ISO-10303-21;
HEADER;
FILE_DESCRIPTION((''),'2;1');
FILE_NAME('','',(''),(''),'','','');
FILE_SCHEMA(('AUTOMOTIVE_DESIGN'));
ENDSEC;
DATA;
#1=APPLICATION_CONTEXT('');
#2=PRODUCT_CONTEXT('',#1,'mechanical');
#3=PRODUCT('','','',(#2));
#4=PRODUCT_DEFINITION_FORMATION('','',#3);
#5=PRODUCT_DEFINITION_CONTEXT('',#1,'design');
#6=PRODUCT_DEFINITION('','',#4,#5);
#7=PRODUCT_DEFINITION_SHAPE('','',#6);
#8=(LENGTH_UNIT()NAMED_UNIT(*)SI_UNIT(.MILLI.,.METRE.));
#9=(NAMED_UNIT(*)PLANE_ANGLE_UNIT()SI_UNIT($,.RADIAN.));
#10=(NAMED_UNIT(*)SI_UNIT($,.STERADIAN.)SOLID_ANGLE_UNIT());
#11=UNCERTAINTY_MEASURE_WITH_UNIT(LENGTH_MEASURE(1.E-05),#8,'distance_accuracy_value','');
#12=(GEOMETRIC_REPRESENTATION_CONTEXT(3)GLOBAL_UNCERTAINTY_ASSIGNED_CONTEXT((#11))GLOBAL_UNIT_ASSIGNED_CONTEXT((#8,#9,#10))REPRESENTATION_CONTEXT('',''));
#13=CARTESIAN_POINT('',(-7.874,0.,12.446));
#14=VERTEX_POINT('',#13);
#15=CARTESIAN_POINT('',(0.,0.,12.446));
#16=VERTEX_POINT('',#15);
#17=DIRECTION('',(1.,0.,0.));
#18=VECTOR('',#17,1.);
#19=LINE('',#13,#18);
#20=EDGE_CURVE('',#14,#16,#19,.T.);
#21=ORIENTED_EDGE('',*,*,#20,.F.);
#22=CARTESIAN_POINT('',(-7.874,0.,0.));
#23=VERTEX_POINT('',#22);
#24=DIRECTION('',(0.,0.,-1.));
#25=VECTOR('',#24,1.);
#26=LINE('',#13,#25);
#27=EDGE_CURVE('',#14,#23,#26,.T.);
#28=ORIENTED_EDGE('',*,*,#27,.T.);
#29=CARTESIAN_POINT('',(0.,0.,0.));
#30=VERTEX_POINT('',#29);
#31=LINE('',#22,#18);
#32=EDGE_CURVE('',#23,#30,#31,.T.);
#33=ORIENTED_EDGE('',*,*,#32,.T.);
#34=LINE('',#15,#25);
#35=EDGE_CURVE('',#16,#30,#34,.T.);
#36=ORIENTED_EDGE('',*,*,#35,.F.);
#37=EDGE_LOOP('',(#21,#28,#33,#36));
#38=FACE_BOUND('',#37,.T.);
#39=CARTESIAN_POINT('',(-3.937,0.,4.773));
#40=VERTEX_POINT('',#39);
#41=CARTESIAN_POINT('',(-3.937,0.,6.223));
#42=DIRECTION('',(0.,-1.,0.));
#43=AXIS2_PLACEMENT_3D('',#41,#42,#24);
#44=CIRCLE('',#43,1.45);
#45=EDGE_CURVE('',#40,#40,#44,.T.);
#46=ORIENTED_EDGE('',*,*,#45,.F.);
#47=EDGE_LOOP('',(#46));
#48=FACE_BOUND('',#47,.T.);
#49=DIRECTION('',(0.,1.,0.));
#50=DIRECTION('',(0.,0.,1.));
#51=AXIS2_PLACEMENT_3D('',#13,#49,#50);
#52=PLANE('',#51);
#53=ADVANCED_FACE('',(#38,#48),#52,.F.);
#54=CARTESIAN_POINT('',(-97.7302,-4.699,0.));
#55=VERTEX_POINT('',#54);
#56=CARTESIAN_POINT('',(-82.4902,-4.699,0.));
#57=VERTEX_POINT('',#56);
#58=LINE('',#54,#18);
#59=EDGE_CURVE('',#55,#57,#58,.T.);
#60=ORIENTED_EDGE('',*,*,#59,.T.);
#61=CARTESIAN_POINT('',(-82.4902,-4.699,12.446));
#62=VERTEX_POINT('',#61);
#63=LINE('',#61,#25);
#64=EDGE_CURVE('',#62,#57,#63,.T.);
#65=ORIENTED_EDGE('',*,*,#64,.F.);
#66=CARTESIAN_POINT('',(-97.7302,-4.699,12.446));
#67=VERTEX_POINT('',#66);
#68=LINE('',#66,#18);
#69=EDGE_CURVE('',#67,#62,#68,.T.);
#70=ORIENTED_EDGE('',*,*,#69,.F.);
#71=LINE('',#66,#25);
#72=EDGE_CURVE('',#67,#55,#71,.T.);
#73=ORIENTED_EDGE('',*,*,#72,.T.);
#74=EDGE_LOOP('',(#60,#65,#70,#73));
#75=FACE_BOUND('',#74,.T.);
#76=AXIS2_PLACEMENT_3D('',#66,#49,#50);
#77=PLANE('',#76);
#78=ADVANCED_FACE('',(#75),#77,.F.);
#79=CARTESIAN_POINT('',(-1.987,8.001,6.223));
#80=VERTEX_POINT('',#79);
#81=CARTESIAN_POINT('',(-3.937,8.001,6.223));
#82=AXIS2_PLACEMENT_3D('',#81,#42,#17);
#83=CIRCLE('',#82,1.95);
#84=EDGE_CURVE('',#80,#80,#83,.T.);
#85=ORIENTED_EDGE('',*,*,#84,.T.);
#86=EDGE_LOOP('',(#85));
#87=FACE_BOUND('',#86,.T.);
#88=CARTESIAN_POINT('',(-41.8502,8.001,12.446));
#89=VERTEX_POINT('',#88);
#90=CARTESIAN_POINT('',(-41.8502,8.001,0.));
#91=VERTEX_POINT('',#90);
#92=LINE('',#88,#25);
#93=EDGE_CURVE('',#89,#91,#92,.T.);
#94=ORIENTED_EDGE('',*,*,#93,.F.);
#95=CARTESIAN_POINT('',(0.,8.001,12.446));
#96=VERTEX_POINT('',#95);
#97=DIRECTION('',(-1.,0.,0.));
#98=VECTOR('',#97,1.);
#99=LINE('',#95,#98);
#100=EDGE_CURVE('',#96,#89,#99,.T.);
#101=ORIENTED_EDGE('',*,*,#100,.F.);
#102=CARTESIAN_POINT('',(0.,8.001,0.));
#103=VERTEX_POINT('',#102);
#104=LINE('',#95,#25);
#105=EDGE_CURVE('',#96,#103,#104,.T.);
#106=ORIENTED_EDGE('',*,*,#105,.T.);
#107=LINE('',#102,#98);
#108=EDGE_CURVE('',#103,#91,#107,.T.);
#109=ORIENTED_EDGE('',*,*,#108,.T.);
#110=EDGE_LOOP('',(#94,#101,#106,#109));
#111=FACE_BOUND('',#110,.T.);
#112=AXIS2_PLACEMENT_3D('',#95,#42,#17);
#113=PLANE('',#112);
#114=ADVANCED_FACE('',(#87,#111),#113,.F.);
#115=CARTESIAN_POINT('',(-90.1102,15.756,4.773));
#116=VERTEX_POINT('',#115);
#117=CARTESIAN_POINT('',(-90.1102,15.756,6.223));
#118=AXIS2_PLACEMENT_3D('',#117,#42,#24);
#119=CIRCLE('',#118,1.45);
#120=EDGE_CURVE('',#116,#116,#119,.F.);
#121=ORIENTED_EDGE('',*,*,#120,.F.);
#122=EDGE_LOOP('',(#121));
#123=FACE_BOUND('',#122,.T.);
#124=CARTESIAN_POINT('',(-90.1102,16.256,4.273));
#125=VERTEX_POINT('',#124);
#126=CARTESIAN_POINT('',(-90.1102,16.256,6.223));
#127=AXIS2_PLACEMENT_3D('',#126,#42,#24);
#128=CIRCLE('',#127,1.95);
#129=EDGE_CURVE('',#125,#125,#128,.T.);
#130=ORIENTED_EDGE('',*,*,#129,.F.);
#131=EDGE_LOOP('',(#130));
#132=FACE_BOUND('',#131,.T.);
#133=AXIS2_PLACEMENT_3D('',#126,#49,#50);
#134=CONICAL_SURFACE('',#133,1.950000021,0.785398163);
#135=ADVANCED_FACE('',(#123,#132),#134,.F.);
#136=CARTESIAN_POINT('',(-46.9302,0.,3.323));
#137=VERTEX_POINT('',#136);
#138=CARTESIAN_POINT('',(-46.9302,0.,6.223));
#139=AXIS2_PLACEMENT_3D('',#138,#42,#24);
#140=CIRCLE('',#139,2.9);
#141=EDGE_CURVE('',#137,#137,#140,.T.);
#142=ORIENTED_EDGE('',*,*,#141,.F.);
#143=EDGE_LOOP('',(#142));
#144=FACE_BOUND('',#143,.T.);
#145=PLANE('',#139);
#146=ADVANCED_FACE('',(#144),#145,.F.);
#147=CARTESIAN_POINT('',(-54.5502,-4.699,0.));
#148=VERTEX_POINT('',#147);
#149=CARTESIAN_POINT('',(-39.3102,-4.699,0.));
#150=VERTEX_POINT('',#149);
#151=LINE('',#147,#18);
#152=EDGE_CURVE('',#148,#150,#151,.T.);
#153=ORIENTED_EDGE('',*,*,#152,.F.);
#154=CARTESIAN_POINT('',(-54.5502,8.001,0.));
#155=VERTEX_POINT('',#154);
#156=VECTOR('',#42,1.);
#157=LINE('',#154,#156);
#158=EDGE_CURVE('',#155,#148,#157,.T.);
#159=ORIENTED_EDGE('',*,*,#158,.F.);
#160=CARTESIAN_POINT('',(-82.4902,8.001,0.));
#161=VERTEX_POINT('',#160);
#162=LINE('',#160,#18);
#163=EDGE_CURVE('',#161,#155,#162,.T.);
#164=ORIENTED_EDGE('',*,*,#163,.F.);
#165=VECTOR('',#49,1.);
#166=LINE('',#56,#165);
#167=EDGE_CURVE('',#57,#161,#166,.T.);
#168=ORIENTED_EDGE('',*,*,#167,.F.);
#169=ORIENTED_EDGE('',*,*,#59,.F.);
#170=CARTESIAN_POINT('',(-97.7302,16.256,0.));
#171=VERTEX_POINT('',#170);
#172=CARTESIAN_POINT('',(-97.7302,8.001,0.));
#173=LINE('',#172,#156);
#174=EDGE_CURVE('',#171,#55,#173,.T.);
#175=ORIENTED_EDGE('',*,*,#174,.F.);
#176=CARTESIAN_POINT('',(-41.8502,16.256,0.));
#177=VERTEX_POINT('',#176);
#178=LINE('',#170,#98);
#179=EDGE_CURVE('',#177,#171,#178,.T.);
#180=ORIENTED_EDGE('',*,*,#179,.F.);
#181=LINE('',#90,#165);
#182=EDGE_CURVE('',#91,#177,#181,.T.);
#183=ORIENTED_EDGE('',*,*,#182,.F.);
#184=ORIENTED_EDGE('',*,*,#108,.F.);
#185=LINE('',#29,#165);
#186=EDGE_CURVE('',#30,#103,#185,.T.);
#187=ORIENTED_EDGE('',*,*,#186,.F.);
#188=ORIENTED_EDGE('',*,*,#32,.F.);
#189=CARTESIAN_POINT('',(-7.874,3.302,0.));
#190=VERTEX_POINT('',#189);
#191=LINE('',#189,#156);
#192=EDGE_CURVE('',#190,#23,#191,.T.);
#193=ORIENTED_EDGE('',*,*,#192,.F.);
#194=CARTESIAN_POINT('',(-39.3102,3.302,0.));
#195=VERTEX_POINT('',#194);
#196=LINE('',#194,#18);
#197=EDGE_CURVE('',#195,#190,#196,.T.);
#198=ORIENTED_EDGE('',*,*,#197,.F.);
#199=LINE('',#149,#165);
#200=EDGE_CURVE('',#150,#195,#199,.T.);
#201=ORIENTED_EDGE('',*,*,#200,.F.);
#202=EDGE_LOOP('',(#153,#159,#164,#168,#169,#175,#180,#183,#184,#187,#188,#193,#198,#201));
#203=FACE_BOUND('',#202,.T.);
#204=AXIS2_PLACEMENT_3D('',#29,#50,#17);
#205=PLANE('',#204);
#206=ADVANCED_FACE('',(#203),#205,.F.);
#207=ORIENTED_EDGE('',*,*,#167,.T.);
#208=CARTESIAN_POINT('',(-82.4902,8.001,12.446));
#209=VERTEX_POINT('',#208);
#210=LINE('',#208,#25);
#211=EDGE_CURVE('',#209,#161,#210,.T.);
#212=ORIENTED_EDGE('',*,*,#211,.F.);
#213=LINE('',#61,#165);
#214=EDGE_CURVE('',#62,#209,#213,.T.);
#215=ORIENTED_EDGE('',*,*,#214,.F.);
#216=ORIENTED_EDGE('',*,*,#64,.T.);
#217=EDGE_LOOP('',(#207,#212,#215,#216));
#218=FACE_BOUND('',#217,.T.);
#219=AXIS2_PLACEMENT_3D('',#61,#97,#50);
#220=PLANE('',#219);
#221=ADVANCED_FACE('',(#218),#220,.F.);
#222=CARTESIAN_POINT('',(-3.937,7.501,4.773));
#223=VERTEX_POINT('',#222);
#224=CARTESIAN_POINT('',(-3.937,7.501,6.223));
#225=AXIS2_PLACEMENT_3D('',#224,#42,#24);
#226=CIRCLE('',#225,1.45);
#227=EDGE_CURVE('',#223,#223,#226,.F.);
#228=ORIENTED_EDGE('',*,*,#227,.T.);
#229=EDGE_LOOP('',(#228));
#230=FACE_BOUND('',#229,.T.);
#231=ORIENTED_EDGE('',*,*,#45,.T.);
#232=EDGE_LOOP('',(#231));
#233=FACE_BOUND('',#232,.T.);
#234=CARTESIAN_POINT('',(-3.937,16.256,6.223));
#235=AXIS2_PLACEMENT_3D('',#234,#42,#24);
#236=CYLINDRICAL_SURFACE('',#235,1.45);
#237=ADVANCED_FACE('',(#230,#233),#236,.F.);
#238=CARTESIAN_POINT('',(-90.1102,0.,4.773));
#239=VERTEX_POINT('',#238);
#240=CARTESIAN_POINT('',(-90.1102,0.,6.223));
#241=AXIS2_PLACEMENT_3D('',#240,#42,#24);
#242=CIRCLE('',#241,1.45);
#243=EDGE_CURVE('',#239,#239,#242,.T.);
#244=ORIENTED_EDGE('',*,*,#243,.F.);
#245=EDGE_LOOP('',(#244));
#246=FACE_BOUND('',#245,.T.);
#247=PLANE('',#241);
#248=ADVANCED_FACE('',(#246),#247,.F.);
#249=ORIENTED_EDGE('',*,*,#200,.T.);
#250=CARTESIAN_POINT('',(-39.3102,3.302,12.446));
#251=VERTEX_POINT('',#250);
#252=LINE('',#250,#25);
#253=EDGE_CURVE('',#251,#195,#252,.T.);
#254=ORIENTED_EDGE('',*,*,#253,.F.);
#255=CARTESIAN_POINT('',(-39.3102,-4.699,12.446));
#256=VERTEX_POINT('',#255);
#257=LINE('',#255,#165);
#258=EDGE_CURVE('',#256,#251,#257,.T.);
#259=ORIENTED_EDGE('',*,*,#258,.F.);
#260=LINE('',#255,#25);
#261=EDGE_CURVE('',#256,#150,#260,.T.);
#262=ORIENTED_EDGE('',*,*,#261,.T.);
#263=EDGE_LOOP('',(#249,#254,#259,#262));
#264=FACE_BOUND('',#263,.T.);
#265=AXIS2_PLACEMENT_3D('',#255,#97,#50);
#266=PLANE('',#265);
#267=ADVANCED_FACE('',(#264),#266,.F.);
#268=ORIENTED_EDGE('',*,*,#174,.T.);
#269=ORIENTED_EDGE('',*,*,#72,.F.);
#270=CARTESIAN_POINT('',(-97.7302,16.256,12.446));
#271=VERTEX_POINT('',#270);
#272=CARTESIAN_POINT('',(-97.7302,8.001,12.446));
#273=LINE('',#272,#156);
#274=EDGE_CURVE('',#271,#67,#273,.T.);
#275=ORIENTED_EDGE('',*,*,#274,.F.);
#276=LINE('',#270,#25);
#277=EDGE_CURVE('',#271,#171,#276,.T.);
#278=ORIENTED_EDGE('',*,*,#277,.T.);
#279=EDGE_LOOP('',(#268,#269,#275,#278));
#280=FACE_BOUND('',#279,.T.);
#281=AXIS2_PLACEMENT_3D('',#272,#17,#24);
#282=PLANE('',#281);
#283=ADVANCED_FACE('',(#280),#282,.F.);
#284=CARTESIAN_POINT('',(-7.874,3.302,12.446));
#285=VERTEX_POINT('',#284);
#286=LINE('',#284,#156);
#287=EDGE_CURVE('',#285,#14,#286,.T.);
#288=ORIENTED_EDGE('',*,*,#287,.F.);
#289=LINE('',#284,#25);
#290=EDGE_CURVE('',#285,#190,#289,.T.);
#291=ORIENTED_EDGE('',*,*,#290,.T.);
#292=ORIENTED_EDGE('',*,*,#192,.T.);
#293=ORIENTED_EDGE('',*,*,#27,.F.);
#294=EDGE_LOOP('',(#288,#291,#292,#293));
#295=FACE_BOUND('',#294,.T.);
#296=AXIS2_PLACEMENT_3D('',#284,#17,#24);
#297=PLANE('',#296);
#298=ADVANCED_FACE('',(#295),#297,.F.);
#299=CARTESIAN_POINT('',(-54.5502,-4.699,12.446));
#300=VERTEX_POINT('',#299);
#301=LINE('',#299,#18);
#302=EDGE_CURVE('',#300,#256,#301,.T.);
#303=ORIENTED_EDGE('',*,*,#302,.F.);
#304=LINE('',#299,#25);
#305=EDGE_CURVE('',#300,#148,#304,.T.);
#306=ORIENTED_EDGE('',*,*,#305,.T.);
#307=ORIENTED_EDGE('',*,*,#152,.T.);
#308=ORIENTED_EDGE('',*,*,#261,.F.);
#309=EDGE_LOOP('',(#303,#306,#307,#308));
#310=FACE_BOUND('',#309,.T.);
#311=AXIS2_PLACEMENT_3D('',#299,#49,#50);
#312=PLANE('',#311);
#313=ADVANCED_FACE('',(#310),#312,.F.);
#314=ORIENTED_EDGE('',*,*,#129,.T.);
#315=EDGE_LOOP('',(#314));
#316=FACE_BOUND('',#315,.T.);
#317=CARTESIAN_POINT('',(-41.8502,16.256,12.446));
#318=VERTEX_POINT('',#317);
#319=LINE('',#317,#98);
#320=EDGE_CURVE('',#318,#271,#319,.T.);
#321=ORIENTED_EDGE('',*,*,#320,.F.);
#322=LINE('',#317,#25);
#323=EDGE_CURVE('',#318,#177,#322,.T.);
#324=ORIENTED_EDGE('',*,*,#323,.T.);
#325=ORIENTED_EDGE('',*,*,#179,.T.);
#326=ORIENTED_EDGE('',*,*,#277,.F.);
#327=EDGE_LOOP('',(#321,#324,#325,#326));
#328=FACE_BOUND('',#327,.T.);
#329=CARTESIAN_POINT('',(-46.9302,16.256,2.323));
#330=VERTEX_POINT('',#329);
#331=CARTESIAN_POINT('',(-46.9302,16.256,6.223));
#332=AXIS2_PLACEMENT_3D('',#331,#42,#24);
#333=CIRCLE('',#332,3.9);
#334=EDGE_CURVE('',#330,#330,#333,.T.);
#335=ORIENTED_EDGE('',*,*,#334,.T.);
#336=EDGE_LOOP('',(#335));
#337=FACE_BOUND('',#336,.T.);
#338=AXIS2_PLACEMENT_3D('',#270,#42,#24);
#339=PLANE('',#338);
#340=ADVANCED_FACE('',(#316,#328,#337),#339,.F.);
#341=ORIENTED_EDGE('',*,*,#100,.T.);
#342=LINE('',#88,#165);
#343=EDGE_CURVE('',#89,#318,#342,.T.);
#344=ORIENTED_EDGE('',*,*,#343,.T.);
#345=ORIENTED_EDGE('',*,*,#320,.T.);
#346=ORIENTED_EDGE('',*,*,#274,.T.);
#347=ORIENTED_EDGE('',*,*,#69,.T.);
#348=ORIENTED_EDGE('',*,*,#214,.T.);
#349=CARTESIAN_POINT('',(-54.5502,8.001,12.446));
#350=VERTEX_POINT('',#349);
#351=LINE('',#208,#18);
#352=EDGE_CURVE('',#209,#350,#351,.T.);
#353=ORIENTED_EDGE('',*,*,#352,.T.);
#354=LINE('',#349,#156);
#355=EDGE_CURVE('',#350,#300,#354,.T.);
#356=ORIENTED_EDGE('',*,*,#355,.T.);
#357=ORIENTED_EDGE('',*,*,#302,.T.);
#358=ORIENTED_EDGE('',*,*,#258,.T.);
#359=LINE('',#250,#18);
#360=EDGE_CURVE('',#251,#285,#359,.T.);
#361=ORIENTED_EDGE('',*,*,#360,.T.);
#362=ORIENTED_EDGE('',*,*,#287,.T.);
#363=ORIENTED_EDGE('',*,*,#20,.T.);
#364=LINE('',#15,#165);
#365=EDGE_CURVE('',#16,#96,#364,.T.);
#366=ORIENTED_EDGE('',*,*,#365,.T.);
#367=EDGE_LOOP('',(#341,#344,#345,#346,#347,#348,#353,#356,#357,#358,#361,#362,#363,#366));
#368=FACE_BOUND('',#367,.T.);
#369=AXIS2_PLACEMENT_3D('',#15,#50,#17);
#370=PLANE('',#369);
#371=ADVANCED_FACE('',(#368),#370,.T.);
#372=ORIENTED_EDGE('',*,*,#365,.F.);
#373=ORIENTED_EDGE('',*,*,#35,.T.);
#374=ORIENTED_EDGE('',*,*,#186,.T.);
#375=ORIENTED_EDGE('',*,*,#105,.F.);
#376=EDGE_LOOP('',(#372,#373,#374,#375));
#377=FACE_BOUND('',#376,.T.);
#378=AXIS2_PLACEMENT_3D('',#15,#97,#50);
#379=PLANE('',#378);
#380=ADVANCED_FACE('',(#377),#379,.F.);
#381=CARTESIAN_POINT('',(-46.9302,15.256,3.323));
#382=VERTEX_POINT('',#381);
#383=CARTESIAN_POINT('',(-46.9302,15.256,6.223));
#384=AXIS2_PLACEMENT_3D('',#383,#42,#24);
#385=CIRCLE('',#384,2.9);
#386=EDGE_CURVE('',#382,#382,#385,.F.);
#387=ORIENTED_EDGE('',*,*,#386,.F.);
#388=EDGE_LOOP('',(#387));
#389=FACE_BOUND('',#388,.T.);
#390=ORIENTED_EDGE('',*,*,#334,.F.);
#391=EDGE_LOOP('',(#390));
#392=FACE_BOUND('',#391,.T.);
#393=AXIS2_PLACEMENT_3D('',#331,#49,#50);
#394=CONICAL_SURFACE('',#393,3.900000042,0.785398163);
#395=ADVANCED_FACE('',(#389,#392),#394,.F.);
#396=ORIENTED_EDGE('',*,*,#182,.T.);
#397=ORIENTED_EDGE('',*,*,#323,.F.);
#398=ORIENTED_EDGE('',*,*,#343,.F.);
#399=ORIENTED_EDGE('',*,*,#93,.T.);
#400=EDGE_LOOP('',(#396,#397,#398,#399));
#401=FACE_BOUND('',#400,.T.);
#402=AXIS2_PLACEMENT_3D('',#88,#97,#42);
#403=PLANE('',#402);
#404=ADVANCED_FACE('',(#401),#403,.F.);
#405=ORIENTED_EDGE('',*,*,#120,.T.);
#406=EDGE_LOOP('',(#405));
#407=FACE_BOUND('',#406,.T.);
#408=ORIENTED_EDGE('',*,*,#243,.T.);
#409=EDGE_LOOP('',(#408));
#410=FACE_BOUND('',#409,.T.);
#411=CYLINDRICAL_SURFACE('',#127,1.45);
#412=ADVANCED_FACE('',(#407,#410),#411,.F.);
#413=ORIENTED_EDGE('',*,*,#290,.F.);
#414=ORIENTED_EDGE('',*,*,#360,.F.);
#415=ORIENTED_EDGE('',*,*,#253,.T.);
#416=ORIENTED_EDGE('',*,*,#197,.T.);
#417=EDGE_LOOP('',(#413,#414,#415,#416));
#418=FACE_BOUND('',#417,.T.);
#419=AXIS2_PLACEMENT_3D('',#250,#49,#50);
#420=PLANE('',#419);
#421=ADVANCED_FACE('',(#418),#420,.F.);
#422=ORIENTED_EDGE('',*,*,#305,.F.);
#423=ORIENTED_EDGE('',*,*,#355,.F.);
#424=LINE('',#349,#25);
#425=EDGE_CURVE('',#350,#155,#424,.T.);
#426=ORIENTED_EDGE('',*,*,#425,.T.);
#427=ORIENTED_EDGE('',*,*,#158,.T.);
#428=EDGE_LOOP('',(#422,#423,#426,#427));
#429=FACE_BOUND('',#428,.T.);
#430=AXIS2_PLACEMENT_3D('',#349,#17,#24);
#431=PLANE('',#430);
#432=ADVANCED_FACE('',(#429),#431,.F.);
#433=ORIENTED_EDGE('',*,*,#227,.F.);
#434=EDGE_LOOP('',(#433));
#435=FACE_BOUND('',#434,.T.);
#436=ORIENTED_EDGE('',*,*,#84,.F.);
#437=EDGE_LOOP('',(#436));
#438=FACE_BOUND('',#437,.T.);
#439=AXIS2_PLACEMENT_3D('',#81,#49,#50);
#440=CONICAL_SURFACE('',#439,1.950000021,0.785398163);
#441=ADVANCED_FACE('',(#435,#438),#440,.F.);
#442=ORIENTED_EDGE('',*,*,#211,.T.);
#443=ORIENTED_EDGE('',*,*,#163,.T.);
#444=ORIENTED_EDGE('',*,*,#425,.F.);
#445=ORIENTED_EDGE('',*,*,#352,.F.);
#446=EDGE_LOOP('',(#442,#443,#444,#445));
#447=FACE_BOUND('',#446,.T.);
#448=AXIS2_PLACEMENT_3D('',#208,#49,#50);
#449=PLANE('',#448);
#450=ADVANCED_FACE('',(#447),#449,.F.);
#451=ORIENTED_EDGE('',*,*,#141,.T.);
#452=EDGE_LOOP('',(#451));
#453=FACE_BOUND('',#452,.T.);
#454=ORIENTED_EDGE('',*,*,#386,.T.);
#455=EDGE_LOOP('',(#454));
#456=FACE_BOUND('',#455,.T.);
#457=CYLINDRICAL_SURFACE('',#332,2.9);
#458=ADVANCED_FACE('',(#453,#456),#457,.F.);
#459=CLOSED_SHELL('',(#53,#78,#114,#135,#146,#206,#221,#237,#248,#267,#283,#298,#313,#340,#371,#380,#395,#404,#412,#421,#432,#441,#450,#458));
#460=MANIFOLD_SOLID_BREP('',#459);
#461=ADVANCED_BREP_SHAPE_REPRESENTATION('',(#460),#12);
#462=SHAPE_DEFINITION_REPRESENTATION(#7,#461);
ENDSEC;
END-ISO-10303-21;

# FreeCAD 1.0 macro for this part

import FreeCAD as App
import Part
import Sketcher

V = App.Vector
Q = App.Units.Quantity


def edges_at(feature, points):
    """Names of the edges that pass closest to the given points."""
    edges = feature.Shape.Edges
    near = lambda p: min(range(len(edges)), key=lambda i: edges[i].distToShape(Part.Vertex(*p))[0])
    return sorted({f"Edge{near(p) + 1}" for p in points})


def add_polygon(sketch, points):
    """Adds a closed chain of lines whose ends are joined by coincident constraints."""
    first, n = sketch.GeometryCount, len(points)
    for a, b in zip(points, points[1:] + points[:1]):
        sketch.addGeometry(Part.LineSegment(App.Vector(*a, 0), App.Vector(*b, 0)), False)
    for i in range(n):
        sketch.addConstraint(Sketcher.Constraint("Coincident", first + i, 2, first + (i + 1) % n, 1))

doc = App.newDocument("Part")
body = doc.addObject("PartDesign::Body", "Body")

# Sketch on XY plane
sketch1 = body.newObject("Sketcher::SketchObject", "Sketch")
sketch1.AttachmentSupport = (doc.getObject("XY_Plane"), [""])
sketch1.MapMode = "FlatFace"
add_polygon(sketch1, [(0, 8.001), (-41.8502, 8.001), (-41.8502, 16.256), (-97.7302, 16.256), (-97.7302, -4.699), (-82.4902, -4.699), (-82.4902, 8.001), (-54.5502, 8.001), (-54.5502, -4.699), (-39.3102, -4.699), (-39.3102, 3.302), (-7.874, 3.302), (-7.874, 0), (0, 0)])  # lines 0-13
sketch1.addConstraint([
    Sketcher.Constraint("Horizontal", 0),
    Sketcher.Constraint("Vertical", 1),
    Sketcher.Constraint("Horizontal", 2),
    Sketcher.Constraint("Vertical", 3),
    Sketcher.Constraint("Horizontal", 4),
    Sketcher.Constraint("Vertical", 5),
    Sketcher.Constraint("Horizontal", 6),
    Sketcher.Constraint("Vertical", 7),
    Sketcher.Constraint("Horizontal", 8),
    Sketcher.Constraint("Vertical", 9),
    Sketcher.Constraint("Horizontal", 10),
    Sketcher.Constraint("Vertical", 11),
    Sketcher.Constraint("Horizontal", 12),
    Sketcher.Constraint("Vertical", 13),
    Sketcher.Constraint("Coincident", 12, 2, -1, 1),
    Sketcher.Constraint("Horizontal", 0, 2, 5, 2),
    Sketcher.Constraint("Horizontal", 4, 2, 7, 2),
    Sketcher.Constraint("Equal", 4, 8),
    Sketcher.Constraint("Equal", 9, 13),
    Sketcher.Constraint("DistanceX", 2, 2, 2, 1, Q("2.2 in")),
    Sketcher.Constraint("DistanceX", 4, 1, 4, 2, Q("0.6 in")),
    Sketcher.Constraint("DistanceX", 6, 1, 6, 2, Q("1.1 in")),
    Sketcher.Constraint("DistanceY", 5, 1, 5, 2, Q("0.5 in")),
    Sketcher.Constraint("DistanceX", 12, 1, 12, 2, Q("0.31 in")),
    Sketcher.Constraint("DistanceY", 11, 2, 11, 1, Q("0.13 in")),
    Sketcher.Constraint("DistanceY", 1, 1, 1, 2, Q("0.325 in")),
    Sketcher.Constraint("DistanceX", 0, 2, 0, 1, Q("41.8502 mm")),
])
pad1 = body.newObject("PartDesign::Pad", "Pad")
pad1.Profile = sketch1
pad1.Length = Q("0.49 in")

# Sketch on XZ plane
sketch2 = body.newObject("Sketcher::SketchObject", "Sketch001")
sketch2.AttachmentSupport = (doc.getObject("XZ_Plane"), [""])
sketch2.MapMode = "FlatFace"
sketch2.addGeometry([
    Part.Circle(V(-90.1102, 6.223, 0), V(0, 0, 1), 1.45),
    Part.Circle(V(-46.9302, 6.223, 0), V(0, 0, 1), 2.9),
    Part.Circle(V(-3.937, 6.223, 0), V(0, 0, 1), 1.45),
], False)
sketch2.addConstraint([
    Sketcher.Constraint("Equal", 0, 2),
    Sketcher.Constraint("Horizontal", 0, 3, 1, 3),
    Sketcher.Constraint("Horizontal", 1, 3, 2, 3),
    Sketcher.Constraint("DistanceX", 0, 3, 1, 3, Q("1.7 in")),
    Sketcher.Constraint("Diameter", 0, Q("2.9 mm")),
    Sketcher.Constraint("Diameter", 1, Q("5.8 mm")),
    Sketcher.Constraint("DistanceY", -1, 1, 0, 3, Q("0.245 in")),
    Sketcher.Constraint("DistanceX", 2, 3, -1, 1, Q("0.155 in")),
    Sketcher.Constraint("DistanceX", 0, 3, -1, 1, Q("90.1102 mm")),
])
pocket1 = body.newObject("PartDesign::Pocket", "Pocket")
pocket1.Profile = sketch2
pocket1.Type = "ThroughAll"
doc.recompute()

chamfer = body.newObject("PartDesign::Chamfer", "Chamfer")
chamfer.Base = (pocket1, edges_at(pocket1, [(-90.11, 16.256, 7.673), (-3.937, 8.001, 7.673)]))
chamfer.Size = 0.5
doc.recompute()

chamfer2 = body.newObject("PartDesign::Chamfer", "Chamfer001")
chamfer2.Base = (chamfer, edges_at(chamfer, [(-46.93, 16.256, 9.123)]))
chamfer2.Size = 1

doc.recompute()
